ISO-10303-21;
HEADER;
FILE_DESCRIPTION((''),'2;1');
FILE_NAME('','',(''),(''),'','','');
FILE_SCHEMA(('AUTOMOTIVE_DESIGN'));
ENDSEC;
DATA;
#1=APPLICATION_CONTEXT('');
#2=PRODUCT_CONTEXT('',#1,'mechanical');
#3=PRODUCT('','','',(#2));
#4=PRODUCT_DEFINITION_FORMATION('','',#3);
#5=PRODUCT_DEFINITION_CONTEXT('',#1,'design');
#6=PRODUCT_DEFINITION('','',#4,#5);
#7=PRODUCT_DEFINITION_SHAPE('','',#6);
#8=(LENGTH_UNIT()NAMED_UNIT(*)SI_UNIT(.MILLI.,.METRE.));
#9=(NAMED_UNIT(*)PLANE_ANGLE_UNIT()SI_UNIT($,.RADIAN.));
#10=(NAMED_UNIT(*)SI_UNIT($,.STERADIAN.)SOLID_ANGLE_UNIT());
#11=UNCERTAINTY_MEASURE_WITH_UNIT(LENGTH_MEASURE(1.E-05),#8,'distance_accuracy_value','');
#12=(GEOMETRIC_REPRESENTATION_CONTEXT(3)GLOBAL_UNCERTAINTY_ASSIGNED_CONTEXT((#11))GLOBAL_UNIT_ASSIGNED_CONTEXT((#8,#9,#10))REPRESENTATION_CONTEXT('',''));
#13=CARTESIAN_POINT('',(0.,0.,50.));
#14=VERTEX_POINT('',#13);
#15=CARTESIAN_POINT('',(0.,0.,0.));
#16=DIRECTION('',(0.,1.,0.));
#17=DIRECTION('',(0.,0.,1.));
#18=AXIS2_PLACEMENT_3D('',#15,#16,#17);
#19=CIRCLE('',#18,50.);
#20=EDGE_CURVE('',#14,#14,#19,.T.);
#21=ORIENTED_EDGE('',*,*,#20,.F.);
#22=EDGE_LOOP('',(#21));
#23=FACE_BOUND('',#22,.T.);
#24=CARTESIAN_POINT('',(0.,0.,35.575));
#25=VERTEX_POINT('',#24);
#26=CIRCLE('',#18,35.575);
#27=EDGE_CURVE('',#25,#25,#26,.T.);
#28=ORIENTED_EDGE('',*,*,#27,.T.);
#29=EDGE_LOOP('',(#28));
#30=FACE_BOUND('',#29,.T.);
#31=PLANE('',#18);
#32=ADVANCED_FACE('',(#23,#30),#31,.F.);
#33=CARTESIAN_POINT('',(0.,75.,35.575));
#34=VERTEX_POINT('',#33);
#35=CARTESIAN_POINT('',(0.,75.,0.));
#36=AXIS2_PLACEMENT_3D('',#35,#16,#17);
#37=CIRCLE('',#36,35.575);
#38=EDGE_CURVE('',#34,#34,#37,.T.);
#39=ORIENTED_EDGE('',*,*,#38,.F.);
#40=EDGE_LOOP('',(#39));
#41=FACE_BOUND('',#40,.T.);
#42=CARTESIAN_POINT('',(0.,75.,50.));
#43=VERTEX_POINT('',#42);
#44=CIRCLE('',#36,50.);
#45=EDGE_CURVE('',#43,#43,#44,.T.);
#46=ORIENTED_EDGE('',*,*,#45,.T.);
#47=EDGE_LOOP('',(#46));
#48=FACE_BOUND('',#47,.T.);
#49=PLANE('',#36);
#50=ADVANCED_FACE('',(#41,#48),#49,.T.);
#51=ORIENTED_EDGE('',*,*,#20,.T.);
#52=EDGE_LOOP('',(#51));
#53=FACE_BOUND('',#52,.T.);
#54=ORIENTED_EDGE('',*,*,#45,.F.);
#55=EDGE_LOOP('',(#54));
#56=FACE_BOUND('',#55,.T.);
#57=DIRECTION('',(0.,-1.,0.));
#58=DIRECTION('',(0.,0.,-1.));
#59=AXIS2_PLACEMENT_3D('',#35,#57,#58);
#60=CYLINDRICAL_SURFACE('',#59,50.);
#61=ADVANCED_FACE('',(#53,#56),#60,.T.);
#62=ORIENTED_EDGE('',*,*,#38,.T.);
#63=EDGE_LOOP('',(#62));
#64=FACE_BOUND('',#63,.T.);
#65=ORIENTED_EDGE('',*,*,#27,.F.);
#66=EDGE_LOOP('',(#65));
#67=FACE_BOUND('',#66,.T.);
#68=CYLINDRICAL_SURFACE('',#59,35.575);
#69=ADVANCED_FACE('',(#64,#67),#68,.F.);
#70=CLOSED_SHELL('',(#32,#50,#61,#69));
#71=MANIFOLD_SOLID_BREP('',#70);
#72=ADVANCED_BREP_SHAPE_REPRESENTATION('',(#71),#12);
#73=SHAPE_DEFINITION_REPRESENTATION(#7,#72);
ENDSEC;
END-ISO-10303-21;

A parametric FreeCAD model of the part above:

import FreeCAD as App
import Part
import Sketcher
Q = App.Units.Quantity

doc = App.newDocument("Part")
body = doc.addObject("PartDesign::Body", "Body")

# Sketch on XZ plane
sketch1 = body.newObject("Sketcher::SketchObject", "Sketch")
sketch1.AttachmentSupport = (doc.getObject("XZ_Plane"), [""])
sketch1.MapMode = "FlatFace"
sketch1.addGeometry(Part.Circle(App.Vector(0, 0, 0), App.Vector(0, 0, 1), 50), False)
sketch1.addGeometry(Part.Circle(App.Vector(0, 0, 0), App.Vector(0, 0, 1), 36), False)
sketch1.addConstraint(Sketcher.Constraint("Coincident", 0, 3, -1, 1))
sketch1.addConstraint(Sketcher.Constraint("Coincident", 1, 3, -1, 1))
sketch1.addConstraint(Sketcher.Constraint("Diameter", 0, Q("100 mm")))
sketch1.addConstraint(Sketcher.Constraint("Diameter", 1, Q("71.15 mm")))
pad1 = body.newObject("PartDesign::Pad", "Pad")
pad1.Profile = sketch1
pad1.Length = 75
pad1.Reversed = True

doc.recompute()
